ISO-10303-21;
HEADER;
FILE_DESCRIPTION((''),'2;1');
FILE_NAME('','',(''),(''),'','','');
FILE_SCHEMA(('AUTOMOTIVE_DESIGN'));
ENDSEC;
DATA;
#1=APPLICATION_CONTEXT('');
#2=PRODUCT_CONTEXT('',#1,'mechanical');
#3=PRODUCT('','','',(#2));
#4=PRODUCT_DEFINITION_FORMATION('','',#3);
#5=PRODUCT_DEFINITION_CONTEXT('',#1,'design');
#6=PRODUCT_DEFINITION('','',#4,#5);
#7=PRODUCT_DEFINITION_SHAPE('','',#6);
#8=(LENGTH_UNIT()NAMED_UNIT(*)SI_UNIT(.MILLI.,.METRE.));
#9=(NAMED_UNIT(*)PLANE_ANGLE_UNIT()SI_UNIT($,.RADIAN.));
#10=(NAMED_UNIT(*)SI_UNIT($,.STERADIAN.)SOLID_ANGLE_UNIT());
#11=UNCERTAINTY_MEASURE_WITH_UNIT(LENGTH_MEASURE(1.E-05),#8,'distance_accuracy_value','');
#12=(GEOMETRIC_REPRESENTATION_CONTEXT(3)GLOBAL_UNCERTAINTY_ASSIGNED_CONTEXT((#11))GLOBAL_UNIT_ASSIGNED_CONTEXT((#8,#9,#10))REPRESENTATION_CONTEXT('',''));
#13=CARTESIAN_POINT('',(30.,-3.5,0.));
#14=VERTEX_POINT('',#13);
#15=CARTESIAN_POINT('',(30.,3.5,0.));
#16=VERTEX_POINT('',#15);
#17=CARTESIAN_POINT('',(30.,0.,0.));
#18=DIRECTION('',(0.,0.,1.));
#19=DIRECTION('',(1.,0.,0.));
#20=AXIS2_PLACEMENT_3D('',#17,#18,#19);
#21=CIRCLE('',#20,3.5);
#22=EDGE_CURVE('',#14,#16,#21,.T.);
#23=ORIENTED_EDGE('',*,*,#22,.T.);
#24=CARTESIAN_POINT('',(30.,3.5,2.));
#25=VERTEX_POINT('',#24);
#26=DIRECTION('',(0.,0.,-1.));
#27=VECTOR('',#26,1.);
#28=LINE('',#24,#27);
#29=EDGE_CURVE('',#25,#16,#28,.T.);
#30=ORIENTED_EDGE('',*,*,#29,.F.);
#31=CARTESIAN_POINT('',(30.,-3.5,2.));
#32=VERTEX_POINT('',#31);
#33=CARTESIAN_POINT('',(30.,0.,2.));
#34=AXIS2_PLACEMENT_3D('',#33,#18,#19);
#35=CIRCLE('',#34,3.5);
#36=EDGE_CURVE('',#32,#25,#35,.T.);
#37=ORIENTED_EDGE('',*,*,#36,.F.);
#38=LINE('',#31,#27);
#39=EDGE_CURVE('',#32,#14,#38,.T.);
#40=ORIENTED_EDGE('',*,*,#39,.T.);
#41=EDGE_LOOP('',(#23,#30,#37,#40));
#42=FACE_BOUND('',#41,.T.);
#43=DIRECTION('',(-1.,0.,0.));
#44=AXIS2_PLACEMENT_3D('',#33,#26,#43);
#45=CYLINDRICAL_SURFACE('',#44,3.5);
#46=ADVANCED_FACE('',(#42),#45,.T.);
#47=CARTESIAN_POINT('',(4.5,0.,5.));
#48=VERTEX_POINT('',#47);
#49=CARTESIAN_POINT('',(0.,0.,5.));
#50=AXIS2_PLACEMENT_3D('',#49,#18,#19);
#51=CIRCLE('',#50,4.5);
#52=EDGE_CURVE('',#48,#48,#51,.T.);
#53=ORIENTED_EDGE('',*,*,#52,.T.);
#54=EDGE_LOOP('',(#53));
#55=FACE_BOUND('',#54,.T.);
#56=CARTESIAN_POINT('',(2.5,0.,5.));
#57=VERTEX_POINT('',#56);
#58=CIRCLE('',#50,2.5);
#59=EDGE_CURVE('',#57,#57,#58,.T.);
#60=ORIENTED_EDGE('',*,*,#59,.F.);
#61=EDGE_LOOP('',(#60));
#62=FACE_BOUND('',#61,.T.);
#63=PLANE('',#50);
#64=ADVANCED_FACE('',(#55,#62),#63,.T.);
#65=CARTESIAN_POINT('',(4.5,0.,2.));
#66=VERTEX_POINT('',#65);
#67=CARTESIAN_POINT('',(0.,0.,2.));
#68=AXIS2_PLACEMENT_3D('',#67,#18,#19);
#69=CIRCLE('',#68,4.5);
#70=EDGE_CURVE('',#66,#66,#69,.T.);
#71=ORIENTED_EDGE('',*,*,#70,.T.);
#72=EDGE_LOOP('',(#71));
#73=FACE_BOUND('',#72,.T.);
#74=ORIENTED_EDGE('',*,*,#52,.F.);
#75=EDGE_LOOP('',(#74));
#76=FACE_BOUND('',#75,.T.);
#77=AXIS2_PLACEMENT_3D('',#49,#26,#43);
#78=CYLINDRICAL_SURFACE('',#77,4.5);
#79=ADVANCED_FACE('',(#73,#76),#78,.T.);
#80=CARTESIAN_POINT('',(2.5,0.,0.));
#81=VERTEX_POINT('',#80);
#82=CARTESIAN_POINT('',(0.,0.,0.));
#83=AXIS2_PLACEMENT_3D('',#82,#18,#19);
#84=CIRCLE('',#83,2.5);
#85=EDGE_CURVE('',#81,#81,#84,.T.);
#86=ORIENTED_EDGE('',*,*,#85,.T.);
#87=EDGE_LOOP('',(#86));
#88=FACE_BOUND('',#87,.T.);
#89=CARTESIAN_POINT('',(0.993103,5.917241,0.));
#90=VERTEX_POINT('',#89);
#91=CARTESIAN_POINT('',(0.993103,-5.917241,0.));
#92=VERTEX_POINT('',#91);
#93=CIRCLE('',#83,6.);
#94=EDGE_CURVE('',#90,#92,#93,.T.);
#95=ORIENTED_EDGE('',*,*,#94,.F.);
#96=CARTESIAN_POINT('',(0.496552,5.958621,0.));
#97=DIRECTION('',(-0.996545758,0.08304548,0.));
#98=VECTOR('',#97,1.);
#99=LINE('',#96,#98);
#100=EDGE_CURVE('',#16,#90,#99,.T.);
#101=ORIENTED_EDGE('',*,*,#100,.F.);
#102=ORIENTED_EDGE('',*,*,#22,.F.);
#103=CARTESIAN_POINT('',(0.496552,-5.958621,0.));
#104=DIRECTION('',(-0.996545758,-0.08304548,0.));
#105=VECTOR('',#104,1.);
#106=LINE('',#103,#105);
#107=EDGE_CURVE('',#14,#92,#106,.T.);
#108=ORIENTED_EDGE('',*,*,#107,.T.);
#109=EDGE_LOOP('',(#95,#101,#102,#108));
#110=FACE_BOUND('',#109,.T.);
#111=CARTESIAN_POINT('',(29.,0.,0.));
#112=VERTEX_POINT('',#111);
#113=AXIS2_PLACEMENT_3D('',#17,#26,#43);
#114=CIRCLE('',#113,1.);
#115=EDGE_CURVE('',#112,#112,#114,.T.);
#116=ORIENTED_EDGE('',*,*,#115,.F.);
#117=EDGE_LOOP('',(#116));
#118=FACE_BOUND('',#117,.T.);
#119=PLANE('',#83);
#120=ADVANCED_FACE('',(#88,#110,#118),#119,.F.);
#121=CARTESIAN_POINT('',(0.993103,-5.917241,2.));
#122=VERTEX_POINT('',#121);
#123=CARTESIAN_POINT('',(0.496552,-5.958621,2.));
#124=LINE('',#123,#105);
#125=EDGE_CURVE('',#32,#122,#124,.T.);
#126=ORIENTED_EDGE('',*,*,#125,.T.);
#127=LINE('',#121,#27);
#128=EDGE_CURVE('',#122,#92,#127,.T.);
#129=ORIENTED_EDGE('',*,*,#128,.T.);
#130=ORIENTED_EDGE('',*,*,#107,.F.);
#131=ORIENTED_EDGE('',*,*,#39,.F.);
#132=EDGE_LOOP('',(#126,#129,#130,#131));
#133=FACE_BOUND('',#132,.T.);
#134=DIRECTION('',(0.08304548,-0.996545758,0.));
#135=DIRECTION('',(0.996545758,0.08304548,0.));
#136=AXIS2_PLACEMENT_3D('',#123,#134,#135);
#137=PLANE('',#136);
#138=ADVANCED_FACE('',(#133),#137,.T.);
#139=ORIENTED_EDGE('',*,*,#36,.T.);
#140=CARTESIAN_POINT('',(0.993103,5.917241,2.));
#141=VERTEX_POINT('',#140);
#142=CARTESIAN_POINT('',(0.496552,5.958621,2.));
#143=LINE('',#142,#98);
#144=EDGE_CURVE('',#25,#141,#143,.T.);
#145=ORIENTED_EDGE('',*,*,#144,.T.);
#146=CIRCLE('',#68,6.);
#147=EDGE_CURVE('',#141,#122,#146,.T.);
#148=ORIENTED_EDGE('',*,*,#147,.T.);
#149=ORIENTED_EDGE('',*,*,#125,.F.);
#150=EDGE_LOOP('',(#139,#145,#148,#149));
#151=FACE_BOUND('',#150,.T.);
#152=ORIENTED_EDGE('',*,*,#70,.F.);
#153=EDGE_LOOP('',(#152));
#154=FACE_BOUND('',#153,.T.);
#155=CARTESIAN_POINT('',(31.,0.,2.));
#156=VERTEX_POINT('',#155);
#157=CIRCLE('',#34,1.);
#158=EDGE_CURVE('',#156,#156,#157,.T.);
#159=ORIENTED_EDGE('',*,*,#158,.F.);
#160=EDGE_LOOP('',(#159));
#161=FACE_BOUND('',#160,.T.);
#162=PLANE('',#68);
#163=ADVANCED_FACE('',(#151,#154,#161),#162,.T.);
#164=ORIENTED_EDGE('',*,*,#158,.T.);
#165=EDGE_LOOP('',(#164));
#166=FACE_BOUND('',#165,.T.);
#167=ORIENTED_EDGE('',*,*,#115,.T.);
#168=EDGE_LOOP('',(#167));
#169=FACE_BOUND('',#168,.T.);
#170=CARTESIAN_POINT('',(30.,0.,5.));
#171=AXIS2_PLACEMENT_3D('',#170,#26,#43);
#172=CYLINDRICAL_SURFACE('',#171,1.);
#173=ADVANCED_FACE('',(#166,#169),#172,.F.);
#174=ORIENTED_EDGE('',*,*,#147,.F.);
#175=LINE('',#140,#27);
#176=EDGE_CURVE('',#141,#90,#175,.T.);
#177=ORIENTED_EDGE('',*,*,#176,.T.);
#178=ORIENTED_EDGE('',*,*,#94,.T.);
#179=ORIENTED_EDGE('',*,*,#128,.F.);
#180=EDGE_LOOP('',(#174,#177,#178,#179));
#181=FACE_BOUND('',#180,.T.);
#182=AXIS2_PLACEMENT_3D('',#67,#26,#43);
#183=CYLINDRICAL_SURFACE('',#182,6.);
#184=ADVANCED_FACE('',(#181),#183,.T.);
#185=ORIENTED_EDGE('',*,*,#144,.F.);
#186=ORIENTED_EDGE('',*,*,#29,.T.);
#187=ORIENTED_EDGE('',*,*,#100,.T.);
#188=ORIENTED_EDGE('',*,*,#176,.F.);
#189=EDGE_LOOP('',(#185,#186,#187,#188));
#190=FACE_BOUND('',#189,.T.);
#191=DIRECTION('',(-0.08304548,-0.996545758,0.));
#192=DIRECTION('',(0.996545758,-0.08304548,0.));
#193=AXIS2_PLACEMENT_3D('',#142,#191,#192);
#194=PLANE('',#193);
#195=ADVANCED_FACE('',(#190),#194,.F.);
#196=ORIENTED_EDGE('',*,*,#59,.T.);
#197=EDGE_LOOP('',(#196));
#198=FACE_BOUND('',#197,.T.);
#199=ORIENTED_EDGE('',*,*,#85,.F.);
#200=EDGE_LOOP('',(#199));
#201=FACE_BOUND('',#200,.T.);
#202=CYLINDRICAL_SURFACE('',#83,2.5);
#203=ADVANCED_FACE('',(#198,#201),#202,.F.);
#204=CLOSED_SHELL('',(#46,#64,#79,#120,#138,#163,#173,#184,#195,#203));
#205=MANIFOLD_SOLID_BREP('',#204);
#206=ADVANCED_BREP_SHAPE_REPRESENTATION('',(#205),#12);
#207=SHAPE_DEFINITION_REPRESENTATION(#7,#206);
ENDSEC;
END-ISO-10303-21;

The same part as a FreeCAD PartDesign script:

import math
import FreeCAD as App
import Part
import Sketcher

V = App.Vector

doc = App.newDocument("Part")
params = doc.addObject("Spreadsheet::Sheet", "Params")
for row, (alias, value) in enumerate([
    ("sketch1_radius", "6 mm"),
    ("sketch1_radius2", "3.5 mm"),
    ("pad1_length", "2 mm"),
    ("sketch2_diameter", "9 mm"),
    ("pad2_length", "3 mm"),
    ("sketch3_diameter", "5 mm"),
    ("sketch4_radius", "1 mm"),
], start=1):
    params.set(f"A{row}", alias)
    params.set(f"B{row}", "=" + value)
    params.setAlias(f"B{row}", alias)

body = doc.addObject("PartDesign::Body", "Body")

# Sketch on XY plane
sketch1 = body.newObject("Sketcher::SketchObject", "Sketch")
sketch1.AttachmentSupport = (doc.getObject("XY_Plane"), [""])
sketch1.MapMode = "FlatFace"
sketch1.addGeometry(Part.LineSegment(V(1, -5.9, 0), V(30, -3.5, 0)), False)
sketch1.addGeometry(Part.ArcOfCircle(Part.Circle(V(30, 0, 0), V(0, 0, 1), 3.5), math.radians(-90), math.radians(90)), False)
sketch1.addGeometry(Part.LineSegment(V(30, 3.5, 0), V(1, 5.9, 0)), False)
sketch1.addGeometry(Part.ArcOfCircle(Part.Circle(V(0, 0, 0), V(0, 0, 1), 6), math.radians(80), math.radians(280)), False)
sketch1.addConstraint(Sketcher.Constraint("Coincident", 0, 2, 1, 1))
sketch1.addConstraint(Sketcher.Constraint("Coincident", 1, 2, 2, 1))
sketch1.addConstraint(Sketcher.Constraint("Coincident", 2, 2, 3, 1))
sketch1.addConstraint(Sketcher.Constraint("Coincident", 3, 2, 0, 1))
sketch1.addConstraint(Sketcher.Constraint("Coincident", 3, 3, -1, 1))
sketch1.addConstraint(Sketcher.Constraint("Symmetric", 0, 2, 1, 2, -1))
sketch1.addConstraint(Sketcher.Constraint("Vertical", 1, 3, 0, 2))
sketch1.addConstraint(Sketcher.Constraint("Vertical", 2, 2, 3, 2))
sketch1.addConstraint(Sketcher.Constraint("Radius", 3, 6.0))
sketch1.addConstraint(Sketcher.Constraint("Radius", 1, 3.5))
sketch1.addConstraint(Sketcher.Constraint("DistanceX", -1, 1, 1, 3, 30.0))
sketch1.addConstraint(Sketcher.Constraint("Distance", 0, 29.107441))
sketch1.setExpression("Constraints[8]", "Params.sketch1_radius")
sketch1.setExpression("Constraints[9]", "Params.sketch1_radius2")
pad1 = body.newObject("PartDesign::Pad", "Pad")
pad1.Profile = sketch1
pad1.setExpression("Length", "Params.pad1_length")

# Sketch on XY plane
sketch2 = body.newObject("Sketcher::SketchObject", "Sketch001")
sketch2.AttachmentSupport = (doc.getObject("XY_Plane"), [""])
sketch2.MapMode = "FlatFace"
sketch2.AttachmentOffset = App.Placement(V(0, 0, 2), App.Rotation())
sketch2.addGeometry(Part.Circle(V(0, 0, 0), V(0, 0, 1), 4.5), False)
sketch2.addConstraint(Sketcher.Constraint("Coincident", 0, 3, -1, 1))
sketch2.addConstraint(Sketcher.Constraint("Diameter", 0, 9.0))
sketch2.setExpression("Constraints[1]", "Params.sketch2_diameter")
pad2 = body.newObject("PartDesign::Pad", "Pad001")
pad2.Profile = sketch2
pad2.setExpression("Length", "Params.pad2_length")

# Sketch on XY plane
sketch3 = body.newObject("Sketcher::SketchObject", "Sketch002")
sketch3.AttachmentSupport = (doc.getObject("XY_Plane"), [""])
sketch3.MapMode = "FlatFace"
sketch3.AttachmentOffset = App.Placement(V(0, 0, 5), App.Rotation())
sketch3.addGeometry(Part.Circle(V(0, 0, 0), V(0, 0, 1), 2.5), False)
sketch3.addConstraint(Sketcher.Constraint("Coincident", 0, 3, -1, 1))
sketch3.addConstraint(Sketcher.Constraint("Diameter", 0, 5.0))
sketch3.setExpression("Constraints[1]", "Params.sketch3_diameter")
pocket1 = body.newObject("PartDesign::Pocket", "Pocket")
pocket1.Profile = sketch3
pocket1.Type = "ThroughAll"

# Sketch on XY plane
sketch4 = body.newObject("Sketcher::SketchObject", "Sketch003")
sketch4.AttachmentSupport = (doc.getObject("XY_Plane"), [""])
sketch4.MapMode = "FlatFace"
sketch4.addGeometry(Part.ArcOfCircle(Part.Circle(V(30, 0, 0), V(0, 0, 1), 1), math.radians(90), math.radians(180)), False)
sketch4.addGeometry(Part.ArcOfCircle(Part.Circle(V(30, 0, 0), V(0, 0, 1), 1), math.radians(-90), math.radians(90)), False)
sketch4.addGeometry(Part.ArcOfCircle(Part.Circle(V(30, 0, 0), V(0, 0, 1), 1), math.radians(-180), math.radians(-90)), False)
sketch4.addConstraint(Sketcher.Constraint("Tangent", 0, 1, 1, 2))
sketch4.addConstraint(Sketcher.Constraint("Tangent", 1, 1, 2, 2))
sketch4.addConstraint(Sketcher.Constraint("Tangent", 2, 1, 0, 2))
sketch4.addConstraint(Sketcher.Constraint("Symmetric", 0, 1, 1, 1, -1))
sketch4.addConstraint(Sketcher.Constraint("PointOnObject", 2, 1, -1))
sketch4.addConstraint(Sketcher.Constraint("Vertical", 2, 3, 0, 1))
sketch4.addConstraint(Sketcher.Constraint("Radius", 0, 1.0))
sketch4.addConstraint(Sketcher.Constraint("DistanceX", -1, 1, 0, 3, 30.0))
sketch4.setExpression("Constraints[6]", "Params.sketch4_radius")
pocket2 = body.newObject("PartDesign::Pocket", "Pocket001")
pocket2.Profile = sketch4
pocket2.Type = "ThroughAll"
pocket2.Reversed = True

doc.recompute()
